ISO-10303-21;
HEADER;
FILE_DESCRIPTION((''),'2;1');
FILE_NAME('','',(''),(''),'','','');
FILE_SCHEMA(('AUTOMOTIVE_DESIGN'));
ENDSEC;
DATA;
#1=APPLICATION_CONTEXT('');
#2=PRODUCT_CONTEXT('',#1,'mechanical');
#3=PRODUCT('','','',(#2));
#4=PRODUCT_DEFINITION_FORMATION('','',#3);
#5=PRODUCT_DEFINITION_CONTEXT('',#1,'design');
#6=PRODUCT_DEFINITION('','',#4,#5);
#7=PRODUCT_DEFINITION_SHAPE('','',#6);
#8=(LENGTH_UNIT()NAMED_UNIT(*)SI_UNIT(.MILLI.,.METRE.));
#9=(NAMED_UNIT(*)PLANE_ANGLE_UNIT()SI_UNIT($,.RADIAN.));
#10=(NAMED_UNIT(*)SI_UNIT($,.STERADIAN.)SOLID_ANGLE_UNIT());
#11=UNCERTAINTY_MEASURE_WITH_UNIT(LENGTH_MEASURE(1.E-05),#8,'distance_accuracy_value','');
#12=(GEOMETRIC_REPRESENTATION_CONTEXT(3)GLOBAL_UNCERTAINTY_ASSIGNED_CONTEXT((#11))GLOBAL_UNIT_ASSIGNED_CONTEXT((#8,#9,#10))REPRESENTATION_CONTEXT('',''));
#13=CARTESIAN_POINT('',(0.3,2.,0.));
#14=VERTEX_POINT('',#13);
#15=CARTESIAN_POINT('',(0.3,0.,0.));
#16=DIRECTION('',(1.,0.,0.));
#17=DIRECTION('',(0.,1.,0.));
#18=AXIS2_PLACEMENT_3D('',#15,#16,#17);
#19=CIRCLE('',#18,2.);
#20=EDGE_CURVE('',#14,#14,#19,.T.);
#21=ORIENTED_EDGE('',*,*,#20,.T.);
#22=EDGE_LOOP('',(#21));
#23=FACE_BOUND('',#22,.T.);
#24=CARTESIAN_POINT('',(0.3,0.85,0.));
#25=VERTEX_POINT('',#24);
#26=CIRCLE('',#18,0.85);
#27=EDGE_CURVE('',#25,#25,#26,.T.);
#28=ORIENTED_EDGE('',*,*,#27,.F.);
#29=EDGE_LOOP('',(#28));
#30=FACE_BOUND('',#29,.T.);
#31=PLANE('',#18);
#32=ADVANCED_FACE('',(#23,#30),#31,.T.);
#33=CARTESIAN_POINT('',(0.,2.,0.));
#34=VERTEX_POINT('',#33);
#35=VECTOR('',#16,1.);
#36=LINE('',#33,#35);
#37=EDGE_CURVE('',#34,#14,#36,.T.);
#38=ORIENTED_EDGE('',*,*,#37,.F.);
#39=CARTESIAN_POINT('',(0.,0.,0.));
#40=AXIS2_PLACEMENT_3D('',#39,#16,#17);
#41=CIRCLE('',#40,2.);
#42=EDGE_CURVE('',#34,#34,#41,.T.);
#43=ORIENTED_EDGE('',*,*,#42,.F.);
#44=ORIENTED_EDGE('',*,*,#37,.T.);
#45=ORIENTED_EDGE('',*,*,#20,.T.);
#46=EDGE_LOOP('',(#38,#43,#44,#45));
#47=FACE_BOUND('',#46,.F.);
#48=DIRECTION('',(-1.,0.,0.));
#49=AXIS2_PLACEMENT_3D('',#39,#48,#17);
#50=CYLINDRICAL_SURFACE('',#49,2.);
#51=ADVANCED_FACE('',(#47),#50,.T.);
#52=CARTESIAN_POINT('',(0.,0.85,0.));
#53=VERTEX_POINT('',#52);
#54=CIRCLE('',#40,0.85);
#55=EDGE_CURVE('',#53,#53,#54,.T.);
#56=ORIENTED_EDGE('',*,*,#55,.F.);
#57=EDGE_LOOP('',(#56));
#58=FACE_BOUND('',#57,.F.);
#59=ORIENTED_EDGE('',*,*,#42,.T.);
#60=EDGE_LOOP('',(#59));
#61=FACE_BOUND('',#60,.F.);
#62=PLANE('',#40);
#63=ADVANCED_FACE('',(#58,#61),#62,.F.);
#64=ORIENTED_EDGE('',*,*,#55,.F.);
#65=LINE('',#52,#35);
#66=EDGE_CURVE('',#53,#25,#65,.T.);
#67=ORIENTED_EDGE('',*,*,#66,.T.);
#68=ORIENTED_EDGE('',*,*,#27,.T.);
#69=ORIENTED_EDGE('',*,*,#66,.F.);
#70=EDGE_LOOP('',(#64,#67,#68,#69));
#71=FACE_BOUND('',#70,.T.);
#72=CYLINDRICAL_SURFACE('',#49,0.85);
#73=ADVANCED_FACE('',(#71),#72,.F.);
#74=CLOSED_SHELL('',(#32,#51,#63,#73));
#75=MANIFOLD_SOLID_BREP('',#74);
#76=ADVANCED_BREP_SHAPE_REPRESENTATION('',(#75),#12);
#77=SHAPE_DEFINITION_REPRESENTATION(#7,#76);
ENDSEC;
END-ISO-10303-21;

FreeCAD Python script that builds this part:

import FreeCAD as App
import Part
import Sketcher

V = App.Vector
Q = App.Units.Quantity

doc = App.newDocument("Part")
body = doc.addObject("PartDesign::Body", "Body")

sketch1 = body.newObject("Sketcher::SketchObject", "Sketch")
sketch1.AttachmentSupport = (doc.getObject("YZ_Plane"), [""])
sketch1.MapMode = "FlatFace"
sketch1.addGeometry(Part.Circle(V(0, 0, 0), V(0, 0, 1), 2), False)
sketch1.addGeometry(Part.Circle(V(0, 0, 0), V(0, 0, 1), 0.8), False)
sketch1.addConstraint(Sketcher.Constraint("Coincident", 0, 3, -1, 1))
sketch1.addConstraint(Sketcher.Constraint("Coincident", 1, 3, -1, 1))
sketch1.addConstraint(Sketcher.Constraint("Diameter", 0, Q("4 mm")))
sketch1.addConstraint(Sketcher.Constraint("Diameter", 1, Q("1.7 mm")))
pad1 = body.newObject("PartDesign::Pad", "Pad")
pad1.Profile = sketch1
pad1.Length = 0.3

doc.recompute()
